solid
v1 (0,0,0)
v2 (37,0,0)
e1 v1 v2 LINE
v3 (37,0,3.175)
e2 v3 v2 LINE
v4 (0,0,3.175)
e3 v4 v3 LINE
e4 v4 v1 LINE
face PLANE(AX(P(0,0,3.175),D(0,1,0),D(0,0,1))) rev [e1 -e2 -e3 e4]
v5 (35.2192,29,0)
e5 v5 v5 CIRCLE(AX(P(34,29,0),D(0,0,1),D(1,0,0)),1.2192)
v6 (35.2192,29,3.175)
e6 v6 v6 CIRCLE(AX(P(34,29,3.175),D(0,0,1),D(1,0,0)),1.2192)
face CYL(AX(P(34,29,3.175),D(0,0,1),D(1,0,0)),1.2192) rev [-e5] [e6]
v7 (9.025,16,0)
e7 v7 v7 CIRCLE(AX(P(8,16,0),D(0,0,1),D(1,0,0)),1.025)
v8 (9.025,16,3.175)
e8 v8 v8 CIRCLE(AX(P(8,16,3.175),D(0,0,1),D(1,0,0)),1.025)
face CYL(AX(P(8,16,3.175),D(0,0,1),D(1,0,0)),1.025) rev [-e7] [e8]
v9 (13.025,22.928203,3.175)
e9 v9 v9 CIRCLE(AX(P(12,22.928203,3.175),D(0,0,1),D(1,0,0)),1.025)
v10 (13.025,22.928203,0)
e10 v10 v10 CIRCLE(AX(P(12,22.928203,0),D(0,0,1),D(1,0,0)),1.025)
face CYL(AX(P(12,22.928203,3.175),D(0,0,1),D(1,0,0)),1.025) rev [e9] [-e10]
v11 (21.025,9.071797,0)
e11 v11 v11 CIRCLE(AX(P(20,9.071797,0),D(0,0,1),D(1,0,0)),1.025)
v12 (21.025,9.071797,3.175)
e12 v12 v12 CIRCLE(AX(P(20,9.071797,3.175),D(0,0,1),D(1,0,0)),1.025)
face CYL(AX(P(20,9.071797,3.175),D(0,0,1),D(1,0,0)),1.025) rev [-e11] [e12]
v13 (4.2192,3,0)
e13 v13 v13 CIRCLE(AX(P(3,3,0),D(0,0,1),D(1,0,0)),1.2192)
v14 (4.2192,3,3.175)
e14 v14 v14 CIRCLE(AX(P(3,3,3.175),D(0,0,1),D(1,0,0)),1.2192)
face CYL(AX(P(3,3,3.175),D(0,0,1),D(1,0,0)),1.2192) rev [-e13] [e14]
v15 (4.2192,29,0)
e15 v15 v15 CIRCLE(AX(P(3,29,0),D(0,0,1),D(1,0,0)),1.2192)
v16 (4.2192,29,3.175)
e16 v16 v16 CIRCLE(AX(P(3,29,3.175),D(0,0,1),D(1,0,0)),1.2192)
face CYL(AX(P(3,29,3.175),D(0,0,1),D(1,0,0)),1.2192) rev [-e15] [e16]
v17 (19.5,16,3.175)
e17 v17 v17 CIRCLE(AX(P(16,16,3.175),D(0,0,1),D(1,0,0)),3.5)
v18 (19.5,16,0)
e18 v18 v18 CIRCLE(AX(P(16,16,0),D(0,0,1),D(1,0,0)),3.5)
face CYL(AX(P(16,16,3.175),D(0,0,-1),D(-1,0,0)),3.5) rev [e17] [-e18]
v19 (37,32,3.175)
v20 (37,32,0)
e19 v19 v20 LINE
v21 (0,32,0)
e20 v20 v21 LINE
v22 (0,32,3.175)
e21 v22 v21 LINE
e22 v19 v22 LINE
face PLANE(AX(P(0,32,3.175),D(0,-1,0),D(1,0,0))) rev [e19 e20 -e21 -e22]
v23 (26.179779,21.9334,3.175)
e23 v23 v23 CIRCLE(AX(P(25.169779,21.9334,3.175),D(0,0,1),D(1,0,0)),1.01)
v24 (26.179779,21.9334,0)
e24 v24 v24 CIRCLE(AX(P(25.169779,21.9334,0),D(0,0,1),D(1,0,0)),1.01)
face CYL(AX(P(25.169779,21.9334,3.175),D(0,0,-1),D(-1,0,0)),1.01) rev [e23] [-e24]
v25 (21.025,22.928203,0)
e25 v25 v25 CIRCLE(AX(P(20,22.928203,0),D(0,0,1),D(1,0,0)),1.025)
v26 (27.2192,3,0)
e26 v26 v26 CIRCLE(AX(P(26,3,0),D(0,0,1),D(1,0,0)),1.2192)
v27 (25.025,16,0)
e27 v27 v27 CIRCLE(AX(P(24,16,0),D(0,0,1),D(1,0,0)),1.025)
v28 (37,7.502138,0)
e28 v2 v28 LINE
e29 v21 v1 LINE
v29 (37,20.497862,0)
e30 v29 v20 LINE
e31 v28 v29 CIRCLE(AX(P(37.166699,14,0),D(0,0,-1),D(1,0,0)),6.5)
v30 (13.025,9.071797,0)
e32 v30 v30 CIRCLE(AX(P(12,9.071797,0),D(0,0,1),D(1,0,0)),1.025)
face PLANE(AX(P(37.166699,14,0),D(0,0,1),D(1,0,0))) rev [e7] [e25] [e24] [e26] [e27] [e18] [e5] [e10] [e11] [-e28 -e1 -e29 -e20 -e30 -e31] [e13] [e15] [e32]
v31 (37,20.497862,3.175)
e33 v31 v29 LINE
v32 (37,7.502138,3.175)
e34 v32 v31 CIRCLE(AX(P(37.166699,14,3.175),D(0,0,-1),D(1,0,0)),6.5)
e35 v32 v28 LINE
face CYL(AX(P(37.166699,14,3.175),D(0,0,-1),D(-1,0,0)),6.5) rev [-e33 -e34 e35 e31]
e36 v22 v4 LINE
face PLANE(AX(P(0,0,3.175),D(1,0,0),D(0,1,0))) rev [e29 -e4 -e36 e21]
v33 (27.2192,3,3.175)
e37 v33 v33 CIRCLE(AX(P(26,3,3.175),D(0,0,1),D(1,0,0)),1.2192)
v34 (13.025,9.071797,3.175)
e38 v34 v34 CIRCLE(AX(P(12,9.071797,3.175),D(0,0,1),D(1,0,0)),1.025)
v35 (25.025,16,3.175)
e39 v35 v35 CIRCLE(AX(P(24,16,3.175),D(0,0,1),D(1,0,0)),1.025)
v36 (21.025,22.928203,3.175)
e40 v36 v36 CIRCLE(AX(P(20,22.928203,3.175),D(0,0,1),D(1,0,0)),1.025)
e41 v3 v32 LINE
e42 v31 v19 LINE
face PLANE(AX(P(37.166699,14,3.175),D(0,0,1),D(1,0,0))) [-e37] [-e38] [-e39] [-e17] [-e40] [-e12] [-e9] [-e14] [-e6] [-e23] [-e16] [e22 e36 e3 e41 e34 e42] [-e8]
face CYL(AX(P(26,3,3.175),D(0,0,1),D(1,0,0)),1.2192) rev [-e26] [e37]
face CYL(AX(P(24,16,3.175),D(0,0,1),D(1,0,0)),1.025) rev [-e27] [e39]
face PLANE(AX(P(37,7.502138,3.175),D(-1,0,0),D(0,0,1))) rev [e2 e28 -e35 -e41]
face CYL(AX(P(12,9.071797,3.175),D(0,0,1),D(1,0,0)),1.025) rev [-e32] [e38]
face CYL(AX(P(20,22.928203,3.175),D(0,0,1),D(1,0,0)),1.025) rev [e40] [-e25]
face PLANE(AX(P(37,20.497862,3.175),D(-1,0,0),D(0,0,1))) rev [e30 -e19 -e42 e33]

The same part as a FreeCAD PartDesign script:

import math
import FreeCAD as App
import Part
import Sketcher
from FreeCAD import Vector

doc = App.newDocument("Part")
params = doc.addObject("Spreadsheet::Sheet", "Params")
for row, (alias, value) in enumerate([
    ("sketch1_diameter", "7 mm"),
    ("sketch1_radius", "6.5 mm"),
    ("sketch1_diameter2", "2.02 mm"),
    ("sketch1_width", "37 mm"),
    ("sketch1_height", "32 mm"),
    ("pad1_length", "3.175 mm"),
    ("hole_diameter", "2.4384 mm"),
    ("hole_depth", "3.302 mm"),
    ("sketch3_diameter", "2.05 mm"),
    ("hole2_diameter", "2.05 mm"),
], start=1):
    params.set(f"A{row}", alias)
    params.set(f"B{row}", "=" + value)
    params.setAlias(f"B{row}", alias)

body = doc.addObject("PartDesign::Body", "Body")

sketch1 = body.newObject("Sketcher::SketchObject", "Sketch")
sketch1.AttachmentSupport = (doc.getObject("XY_Plane"), [""])
sketch1.MapMode = "FlatFace"
sketch1.addGeometry([
    Part.LineSegment(Vector(0, 0, 0), Vector(37, 0, 0)),
    Part.LineSegment(Vector(37, 0, 0), Vector(37, 7.5, 0)),
    Part.ArcOfCircle(Part.Circle(Vector(37.2, 14, 0), Vector(0, 0, 1), 6.5), math.radians(91), math.radians(269)),
    Part.LineSegment(Vector(37, 20.5, 0), Vector(37, 32, 0)),
    Part.LineSegment(Vector(37, 32, 0), Vector(0, 32, 0)),
    Part.LineSegment(Vector(0, 32, 0), Vector(0, 0, 0)),
    Part.Circle(Vector(16, 16, 0), Vector(0, 0, 1), 3.5),
    Part.Circle(Vector(25.2, 21.9, 0), Vector(0, 0, 1), 1),
], False)
sketch1.addConstraint([
    Sketcher.Constraint("Coincident", 0, 2, 1, 1),
    Sketcher.Constraint("Coincident", 1, 2, 2, 2),
    Sketcher.Constraint("Coincident", 2, 1, 3, 1),
    Sketcher.Constraint("Coincident", 3, 2, 4, 1),
    Sketcher.Constraint("Coincident", 4, 2, 5, 1),
    Sketcher.Constraint("Coincident", 5, 2, 0, 1),
    Sketcher.Constraint("Horizontal", 0),
    Sketcher.Constraint("Vertical", 1),
    Sketcher.Constraint("Vertical", 3),
    Sketcher.Constraint("Horizontal", 4),
    Sketcher.Constraint("Vertical", 5),
    Sketcher.Constraint("Coincident", 5, 2, -1, 1),
    Sketcher.Constraint("Vertical", 1, 2, 2, 1),
    Sketcher.Constraint("Diameter", 6, 7.0),
    Sketcher.Constraint("Radius", 2, 6.5),
    Sketcher.Constraint("Diameter", 7, 2.02),
    Sketcher.Constraint("DistanceX", 0, 1, 0, 2, 37.0),
    Sketcher.Constraint("DistanceY", 5, 2, 5, 1, 32.0),
    Sketcher.Constraint("DistanceY", -1, 1, 2, 3, 14.0),
    Sketcher.Constraint("DistanceX", -1, 1, 6, 3, 16.0),
    Sketcher.Constraint("DistanceY", -1, 1, 6, 3, 16.0),
    Sketcher.Constraint("DistanceX", -1, 1, 2, 3, 37.166699),
    Sketcher.Constraint("DistanceY", -1, 1, 7, 3, 21.9334),
    Sketcher.Constraint("DistanceX", -1, 1, 7, 3, 25.169779),
])
sketch1.setExpression("Constraints[13]", "Params.sketch1_diameter")
sketch1.setExpression("Constraints[14]", "Params.sketch1_radius")
sketch1.setExpression("Constraints[15]", "Params.sketch1_diameter2")
sketch1.setExpression("Constraints[16]", "Params.sketch1_width")
sketch1.setExpression("Constraints[17]", "Params.sketch1_height")
pad1 = body.newObject("PartDesign::Pad", "Pad")
pad1.Profile = sketch1
pad1.setExpression("Length", "Params.pad1_length")

sketch2 = body.newObject("Sketcher::SketchObject", "Sketch001")
sketch2.AttachmentSupport = (doc.getObject("XY_Plane"), [""])
sketch2.MapMode = "FlatFace"
sketch2.AttachmentOffset = App.Placement(Vector(0, 0, 3.175), App.Rotation())
sketch2.addGeometry([
    Part.Circle(Vector(3, 29, 0), Vector(0, 0, 1), 1.2),
    Part.Circle(Vector(3, 3, 0), Vector(0, 0, 1), 1.2),
    Part.Circle(Vector(34, 29, 0), Vector(0, 0, 1), 1.2),
    Part.Circle(Vector(26, 3, 0), Vector(0, 0, 1), 1.2),
], False)
sketch2.addConstraint([
    Sketcher.Constraint("Equal", 0, 1),
    Sketcher.Constraint("Equal", 1, 2),
    Sketcher.Constraint("Equal", 2, 3),
    Sketcher.Constraint("Horizontal", 0, 3, 2, 3),
    Sketcher.Constraint("Horizontal", 1, 3, 3, 3),
    Sketcher.Constraint("Vertical", 0, 3, 1, 3),
    Sketcher.Constraint("DistanceX", -1, 1, 0, 3, 3.0),
    Sketcher.Constraint("DistanceY", -1, 1, 0, 3, 29.0),
    Sketcher.Constraint("DistanceY", -1, 1, 1, 3, 3.0),
    Sketcher.Constraint("DistanceX", -1, 1, 2, 3, 34.0),
    Sketcher.Constraint("DistanceX", -1, 1, 3, 3, 26.0),
    Sketcher.Constraint("Diameter", 0, 2.4384),
])
doc.recompute()
hole = body.newObject("PartDesign::Hole", "Hole")
hole.Profile = sketch2
hole.ThreadType = "None"
hole.setExpression("Diameter", "Params.hole_diameter")
hole.DepthType = "Dimension"
hole.setExpression("Depth", "Params.hole_depth")
hole.DrillPoint = "Angled"
hole.DrillPointAngle = 118

sketch3 = body.newObject("Sketcher::SketchObject", "Sketch002")
sketch3.AttachmentSupport = (doc.getObject("XY_Plane"), [""])
sketch3.MapMode = "FlatFace"
sketch3.AttachmentOffset = App.Placement(Vector(0, 0, 3.175), App.Rotation())
sketch3.addGeometry([
    Part.Circle(Vector(8, 16, 0), Vector(0, 0, 1), 1),
    Part.Circle(Vector(12, 22.9, 0), Vector(0, 0, 1), 1),
    Part.Circle(Vector(20, 22.9, 0), Vector(0, 0, 1), 1),
    Part.Circle(Vector(24, 16, 0), Vector(0, 0, 1), 1),
    Part.Circle(Vector(20, 9.1, 0), Vector(0, 0, 1), 1),
    Part.Circle(Vector(12, 9.1, 0), Vector(0, 0, 1), 1),
    Part.Circle(Vector(16, 16, 0), Vector(0, 0, 1), 1),
], False)
sketch3.addConstraint([
    Sketcher.Constraint("Equal", 0, 1),
    Sketcher.Constraint("Equal", 1, 2),
    Sketcher.Constraint("Equal", 2, 3),
    Sketcher.Constraint("Equal", 3, 4),
    Sketcher.Constraint("Equal", 4, 5),
    Sketcher.Constraint("Equal", 5, 6),
    Sketcher.Constraint("Horizontal", 1, 3, 2, 3),
    Sketcher.Constraint("Horizontal", 0, 3, 3, 3),
    Sketcher.Constraint("Horizontal", 4, 3, 5, 3),
    Sketcher.Constraint("Horizontal", 3, 3, 6, 3),
    Sketcher.Constraint("Vertical", 2, 3, 4, 3),
    Sketcher.Constraint("Vertical", 1, 3, 5, 3),
    Sketcher.Constraint("Diameter", 0, 2.05),
    Sketcher.Constraint("DistanceX", -1, 1, 0, 3, 8.0),
    Sketcher.Constraint("DistanceY", -1, 1, 0, 3, 16.0),
    Sketcher.Constraint("DistanceX", -1, 1, 1, 3, 12.0),
    Sketcher.Constraint("DistanceX", -1, 1, 2, 3, 20.0),
    Sketcher.Constraint("DistanceX", -1, 1, 3, 3, 24.0),
    Sketcher.Constraint("DistanceX", -1, 1, 6, 3, 16.0),
    Sketcher.Constraint("DistanceY", -1, 1, 1, 3, 22.928203),
    Sketcher.Constraint("DistanceY", -1, 1, 4, 3, 9.071797),
])
sketch3.setExpression("Constraints[12]", "Params.sketch3_diameter")
doc.recompute()
hole2 = body.newObject("PartDesign::Hole", "Hole001")
hole2.Profile = sketch3
hole2.ThreadType = "None"
hole2.setExpression("Diameter", "Params.hole2_diameter")
hole2.DepthType = "ThroughAll"

doc.recompute()
